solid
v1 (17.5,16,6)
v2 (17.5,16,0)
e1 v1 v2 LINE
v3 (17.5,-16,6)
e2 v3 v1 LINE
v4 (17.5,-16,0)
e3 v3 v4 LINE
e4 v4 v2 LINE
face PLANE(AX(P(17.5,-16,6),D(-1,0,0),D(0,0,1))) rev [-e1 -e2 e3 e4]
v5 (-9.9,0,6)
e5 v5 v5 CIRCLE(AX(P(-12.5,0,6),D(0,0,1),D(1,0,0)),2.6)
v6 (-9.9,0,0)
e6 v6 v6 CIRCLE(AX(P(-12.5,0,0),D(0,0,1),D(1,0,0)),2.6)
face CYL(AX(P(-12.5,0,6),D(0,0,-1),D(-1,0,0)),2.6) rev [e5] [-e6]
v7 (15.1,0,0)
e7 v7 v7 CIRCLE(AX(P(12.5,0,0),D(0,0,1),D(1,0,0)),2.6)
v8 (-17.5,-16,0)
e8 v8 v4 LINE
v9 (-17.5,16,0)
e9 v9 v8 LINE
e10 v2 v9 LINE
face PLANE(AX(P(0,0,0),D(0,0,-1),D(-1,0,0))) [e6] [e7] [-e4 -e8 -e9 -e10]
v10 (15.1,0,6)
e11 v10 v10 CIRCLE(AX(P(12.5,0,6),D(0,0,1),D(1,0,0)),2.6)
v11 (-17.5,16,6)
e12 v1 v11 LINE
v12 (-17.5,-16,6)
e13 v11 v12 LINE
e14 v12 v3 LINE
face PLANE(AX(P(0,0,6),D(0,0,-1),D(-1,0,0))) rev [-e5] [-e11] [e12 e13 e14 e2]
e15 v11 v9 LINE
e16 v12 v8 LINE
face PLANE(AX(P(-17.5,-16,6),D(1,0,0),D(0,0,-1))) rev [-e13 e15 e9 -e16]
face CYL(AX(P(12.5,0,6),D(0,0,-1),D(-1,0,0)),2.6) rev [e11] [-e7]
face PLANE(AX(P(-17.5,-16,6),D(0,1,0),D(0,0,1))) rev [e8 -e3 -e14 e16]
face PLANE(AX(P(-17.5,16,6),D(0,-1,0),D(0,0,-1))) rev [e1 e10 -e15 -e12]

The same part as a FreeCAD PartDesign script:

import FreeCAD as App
import Part
import Sketcher


def add_polygon(sketch, points):
    """Adds a closed chain of lines whose ends are joined by coincident constraints."""
    first, n = sketch.GeometryCount, len(points)
    for a, b in zip(points, points[1:] + points[:1]):
        sketch.addGeometry(Part.LineSegment(App.Vector(*a, 0), App.Vector(*b, 0)), False)
    for i in range(n):
        sketch.addConstraint(Sketcher.Constraint("Coincident", first + i, 2, first + (i + 1) % n, 1))

doc = App.newDocument("Part")
body = doc.addObject("PartDesign::Body", "Body")

# Sketch on XY plane
sketch1 = body.newObject("Sketcher::SketchObject", "Sketch")
sketch1.AttachmentSupport = (doc.getObject("XY_Plane"), [""])
sketch1.MapMode = "FlatFace"
add_polygon(sketch1, [(-17.5, 16), (-17.5, -16), (17.5, -16), (17.5, 16)])  # lines 0-3
sketch1.addGeometry(Part.Circle(App.Vector(-12.5, 0, 0), App.Vector(0, 0, 1), 2.6), False)  # 4
sketch1.addGeometry(Part.Circle(App.Vector(12.5, 0, 0), App.Vector(0, 0, 1), 2.6), False)  # 5
sketch1.addConstraint([
    Sketcher.Constraint("Vertical", 0),
    Sketcher.Constraint("Horizontal", 1),
    Sketcher.Constraint("Vertical", 2),
    Sketcher.Constraint("Horizontal", 3),
    Sketcher.Constraint("Equal", 4, 5),
    Sketcher.Constraint("Symmetric", 4, 3, 5, 3, -1, 1),
    Sketcher.Constraint("Symmetric", 0, 2, 2, 2, -1, 1),
    Sketcher.Constraint("PointOnObject", 4, 3, -1),
    Sketcher.Constraint("Diameter", 4, 5.2),
    Sketcher.Constraint("DistanceX", 1, 1, 1, 2, 35.0),
    Sketcher.Constraint("DistanceY", 0, 2, 0, 1, 32.0),
    Sketcher.Constraint("DistanceX", 4, 3, 5, 3, 25.0),
])
pad1 = body.newObject("PartDesign::Pad", "Pad")
pad1.Profile = sketch1
pad1.Length = 6

doc.recompute()
